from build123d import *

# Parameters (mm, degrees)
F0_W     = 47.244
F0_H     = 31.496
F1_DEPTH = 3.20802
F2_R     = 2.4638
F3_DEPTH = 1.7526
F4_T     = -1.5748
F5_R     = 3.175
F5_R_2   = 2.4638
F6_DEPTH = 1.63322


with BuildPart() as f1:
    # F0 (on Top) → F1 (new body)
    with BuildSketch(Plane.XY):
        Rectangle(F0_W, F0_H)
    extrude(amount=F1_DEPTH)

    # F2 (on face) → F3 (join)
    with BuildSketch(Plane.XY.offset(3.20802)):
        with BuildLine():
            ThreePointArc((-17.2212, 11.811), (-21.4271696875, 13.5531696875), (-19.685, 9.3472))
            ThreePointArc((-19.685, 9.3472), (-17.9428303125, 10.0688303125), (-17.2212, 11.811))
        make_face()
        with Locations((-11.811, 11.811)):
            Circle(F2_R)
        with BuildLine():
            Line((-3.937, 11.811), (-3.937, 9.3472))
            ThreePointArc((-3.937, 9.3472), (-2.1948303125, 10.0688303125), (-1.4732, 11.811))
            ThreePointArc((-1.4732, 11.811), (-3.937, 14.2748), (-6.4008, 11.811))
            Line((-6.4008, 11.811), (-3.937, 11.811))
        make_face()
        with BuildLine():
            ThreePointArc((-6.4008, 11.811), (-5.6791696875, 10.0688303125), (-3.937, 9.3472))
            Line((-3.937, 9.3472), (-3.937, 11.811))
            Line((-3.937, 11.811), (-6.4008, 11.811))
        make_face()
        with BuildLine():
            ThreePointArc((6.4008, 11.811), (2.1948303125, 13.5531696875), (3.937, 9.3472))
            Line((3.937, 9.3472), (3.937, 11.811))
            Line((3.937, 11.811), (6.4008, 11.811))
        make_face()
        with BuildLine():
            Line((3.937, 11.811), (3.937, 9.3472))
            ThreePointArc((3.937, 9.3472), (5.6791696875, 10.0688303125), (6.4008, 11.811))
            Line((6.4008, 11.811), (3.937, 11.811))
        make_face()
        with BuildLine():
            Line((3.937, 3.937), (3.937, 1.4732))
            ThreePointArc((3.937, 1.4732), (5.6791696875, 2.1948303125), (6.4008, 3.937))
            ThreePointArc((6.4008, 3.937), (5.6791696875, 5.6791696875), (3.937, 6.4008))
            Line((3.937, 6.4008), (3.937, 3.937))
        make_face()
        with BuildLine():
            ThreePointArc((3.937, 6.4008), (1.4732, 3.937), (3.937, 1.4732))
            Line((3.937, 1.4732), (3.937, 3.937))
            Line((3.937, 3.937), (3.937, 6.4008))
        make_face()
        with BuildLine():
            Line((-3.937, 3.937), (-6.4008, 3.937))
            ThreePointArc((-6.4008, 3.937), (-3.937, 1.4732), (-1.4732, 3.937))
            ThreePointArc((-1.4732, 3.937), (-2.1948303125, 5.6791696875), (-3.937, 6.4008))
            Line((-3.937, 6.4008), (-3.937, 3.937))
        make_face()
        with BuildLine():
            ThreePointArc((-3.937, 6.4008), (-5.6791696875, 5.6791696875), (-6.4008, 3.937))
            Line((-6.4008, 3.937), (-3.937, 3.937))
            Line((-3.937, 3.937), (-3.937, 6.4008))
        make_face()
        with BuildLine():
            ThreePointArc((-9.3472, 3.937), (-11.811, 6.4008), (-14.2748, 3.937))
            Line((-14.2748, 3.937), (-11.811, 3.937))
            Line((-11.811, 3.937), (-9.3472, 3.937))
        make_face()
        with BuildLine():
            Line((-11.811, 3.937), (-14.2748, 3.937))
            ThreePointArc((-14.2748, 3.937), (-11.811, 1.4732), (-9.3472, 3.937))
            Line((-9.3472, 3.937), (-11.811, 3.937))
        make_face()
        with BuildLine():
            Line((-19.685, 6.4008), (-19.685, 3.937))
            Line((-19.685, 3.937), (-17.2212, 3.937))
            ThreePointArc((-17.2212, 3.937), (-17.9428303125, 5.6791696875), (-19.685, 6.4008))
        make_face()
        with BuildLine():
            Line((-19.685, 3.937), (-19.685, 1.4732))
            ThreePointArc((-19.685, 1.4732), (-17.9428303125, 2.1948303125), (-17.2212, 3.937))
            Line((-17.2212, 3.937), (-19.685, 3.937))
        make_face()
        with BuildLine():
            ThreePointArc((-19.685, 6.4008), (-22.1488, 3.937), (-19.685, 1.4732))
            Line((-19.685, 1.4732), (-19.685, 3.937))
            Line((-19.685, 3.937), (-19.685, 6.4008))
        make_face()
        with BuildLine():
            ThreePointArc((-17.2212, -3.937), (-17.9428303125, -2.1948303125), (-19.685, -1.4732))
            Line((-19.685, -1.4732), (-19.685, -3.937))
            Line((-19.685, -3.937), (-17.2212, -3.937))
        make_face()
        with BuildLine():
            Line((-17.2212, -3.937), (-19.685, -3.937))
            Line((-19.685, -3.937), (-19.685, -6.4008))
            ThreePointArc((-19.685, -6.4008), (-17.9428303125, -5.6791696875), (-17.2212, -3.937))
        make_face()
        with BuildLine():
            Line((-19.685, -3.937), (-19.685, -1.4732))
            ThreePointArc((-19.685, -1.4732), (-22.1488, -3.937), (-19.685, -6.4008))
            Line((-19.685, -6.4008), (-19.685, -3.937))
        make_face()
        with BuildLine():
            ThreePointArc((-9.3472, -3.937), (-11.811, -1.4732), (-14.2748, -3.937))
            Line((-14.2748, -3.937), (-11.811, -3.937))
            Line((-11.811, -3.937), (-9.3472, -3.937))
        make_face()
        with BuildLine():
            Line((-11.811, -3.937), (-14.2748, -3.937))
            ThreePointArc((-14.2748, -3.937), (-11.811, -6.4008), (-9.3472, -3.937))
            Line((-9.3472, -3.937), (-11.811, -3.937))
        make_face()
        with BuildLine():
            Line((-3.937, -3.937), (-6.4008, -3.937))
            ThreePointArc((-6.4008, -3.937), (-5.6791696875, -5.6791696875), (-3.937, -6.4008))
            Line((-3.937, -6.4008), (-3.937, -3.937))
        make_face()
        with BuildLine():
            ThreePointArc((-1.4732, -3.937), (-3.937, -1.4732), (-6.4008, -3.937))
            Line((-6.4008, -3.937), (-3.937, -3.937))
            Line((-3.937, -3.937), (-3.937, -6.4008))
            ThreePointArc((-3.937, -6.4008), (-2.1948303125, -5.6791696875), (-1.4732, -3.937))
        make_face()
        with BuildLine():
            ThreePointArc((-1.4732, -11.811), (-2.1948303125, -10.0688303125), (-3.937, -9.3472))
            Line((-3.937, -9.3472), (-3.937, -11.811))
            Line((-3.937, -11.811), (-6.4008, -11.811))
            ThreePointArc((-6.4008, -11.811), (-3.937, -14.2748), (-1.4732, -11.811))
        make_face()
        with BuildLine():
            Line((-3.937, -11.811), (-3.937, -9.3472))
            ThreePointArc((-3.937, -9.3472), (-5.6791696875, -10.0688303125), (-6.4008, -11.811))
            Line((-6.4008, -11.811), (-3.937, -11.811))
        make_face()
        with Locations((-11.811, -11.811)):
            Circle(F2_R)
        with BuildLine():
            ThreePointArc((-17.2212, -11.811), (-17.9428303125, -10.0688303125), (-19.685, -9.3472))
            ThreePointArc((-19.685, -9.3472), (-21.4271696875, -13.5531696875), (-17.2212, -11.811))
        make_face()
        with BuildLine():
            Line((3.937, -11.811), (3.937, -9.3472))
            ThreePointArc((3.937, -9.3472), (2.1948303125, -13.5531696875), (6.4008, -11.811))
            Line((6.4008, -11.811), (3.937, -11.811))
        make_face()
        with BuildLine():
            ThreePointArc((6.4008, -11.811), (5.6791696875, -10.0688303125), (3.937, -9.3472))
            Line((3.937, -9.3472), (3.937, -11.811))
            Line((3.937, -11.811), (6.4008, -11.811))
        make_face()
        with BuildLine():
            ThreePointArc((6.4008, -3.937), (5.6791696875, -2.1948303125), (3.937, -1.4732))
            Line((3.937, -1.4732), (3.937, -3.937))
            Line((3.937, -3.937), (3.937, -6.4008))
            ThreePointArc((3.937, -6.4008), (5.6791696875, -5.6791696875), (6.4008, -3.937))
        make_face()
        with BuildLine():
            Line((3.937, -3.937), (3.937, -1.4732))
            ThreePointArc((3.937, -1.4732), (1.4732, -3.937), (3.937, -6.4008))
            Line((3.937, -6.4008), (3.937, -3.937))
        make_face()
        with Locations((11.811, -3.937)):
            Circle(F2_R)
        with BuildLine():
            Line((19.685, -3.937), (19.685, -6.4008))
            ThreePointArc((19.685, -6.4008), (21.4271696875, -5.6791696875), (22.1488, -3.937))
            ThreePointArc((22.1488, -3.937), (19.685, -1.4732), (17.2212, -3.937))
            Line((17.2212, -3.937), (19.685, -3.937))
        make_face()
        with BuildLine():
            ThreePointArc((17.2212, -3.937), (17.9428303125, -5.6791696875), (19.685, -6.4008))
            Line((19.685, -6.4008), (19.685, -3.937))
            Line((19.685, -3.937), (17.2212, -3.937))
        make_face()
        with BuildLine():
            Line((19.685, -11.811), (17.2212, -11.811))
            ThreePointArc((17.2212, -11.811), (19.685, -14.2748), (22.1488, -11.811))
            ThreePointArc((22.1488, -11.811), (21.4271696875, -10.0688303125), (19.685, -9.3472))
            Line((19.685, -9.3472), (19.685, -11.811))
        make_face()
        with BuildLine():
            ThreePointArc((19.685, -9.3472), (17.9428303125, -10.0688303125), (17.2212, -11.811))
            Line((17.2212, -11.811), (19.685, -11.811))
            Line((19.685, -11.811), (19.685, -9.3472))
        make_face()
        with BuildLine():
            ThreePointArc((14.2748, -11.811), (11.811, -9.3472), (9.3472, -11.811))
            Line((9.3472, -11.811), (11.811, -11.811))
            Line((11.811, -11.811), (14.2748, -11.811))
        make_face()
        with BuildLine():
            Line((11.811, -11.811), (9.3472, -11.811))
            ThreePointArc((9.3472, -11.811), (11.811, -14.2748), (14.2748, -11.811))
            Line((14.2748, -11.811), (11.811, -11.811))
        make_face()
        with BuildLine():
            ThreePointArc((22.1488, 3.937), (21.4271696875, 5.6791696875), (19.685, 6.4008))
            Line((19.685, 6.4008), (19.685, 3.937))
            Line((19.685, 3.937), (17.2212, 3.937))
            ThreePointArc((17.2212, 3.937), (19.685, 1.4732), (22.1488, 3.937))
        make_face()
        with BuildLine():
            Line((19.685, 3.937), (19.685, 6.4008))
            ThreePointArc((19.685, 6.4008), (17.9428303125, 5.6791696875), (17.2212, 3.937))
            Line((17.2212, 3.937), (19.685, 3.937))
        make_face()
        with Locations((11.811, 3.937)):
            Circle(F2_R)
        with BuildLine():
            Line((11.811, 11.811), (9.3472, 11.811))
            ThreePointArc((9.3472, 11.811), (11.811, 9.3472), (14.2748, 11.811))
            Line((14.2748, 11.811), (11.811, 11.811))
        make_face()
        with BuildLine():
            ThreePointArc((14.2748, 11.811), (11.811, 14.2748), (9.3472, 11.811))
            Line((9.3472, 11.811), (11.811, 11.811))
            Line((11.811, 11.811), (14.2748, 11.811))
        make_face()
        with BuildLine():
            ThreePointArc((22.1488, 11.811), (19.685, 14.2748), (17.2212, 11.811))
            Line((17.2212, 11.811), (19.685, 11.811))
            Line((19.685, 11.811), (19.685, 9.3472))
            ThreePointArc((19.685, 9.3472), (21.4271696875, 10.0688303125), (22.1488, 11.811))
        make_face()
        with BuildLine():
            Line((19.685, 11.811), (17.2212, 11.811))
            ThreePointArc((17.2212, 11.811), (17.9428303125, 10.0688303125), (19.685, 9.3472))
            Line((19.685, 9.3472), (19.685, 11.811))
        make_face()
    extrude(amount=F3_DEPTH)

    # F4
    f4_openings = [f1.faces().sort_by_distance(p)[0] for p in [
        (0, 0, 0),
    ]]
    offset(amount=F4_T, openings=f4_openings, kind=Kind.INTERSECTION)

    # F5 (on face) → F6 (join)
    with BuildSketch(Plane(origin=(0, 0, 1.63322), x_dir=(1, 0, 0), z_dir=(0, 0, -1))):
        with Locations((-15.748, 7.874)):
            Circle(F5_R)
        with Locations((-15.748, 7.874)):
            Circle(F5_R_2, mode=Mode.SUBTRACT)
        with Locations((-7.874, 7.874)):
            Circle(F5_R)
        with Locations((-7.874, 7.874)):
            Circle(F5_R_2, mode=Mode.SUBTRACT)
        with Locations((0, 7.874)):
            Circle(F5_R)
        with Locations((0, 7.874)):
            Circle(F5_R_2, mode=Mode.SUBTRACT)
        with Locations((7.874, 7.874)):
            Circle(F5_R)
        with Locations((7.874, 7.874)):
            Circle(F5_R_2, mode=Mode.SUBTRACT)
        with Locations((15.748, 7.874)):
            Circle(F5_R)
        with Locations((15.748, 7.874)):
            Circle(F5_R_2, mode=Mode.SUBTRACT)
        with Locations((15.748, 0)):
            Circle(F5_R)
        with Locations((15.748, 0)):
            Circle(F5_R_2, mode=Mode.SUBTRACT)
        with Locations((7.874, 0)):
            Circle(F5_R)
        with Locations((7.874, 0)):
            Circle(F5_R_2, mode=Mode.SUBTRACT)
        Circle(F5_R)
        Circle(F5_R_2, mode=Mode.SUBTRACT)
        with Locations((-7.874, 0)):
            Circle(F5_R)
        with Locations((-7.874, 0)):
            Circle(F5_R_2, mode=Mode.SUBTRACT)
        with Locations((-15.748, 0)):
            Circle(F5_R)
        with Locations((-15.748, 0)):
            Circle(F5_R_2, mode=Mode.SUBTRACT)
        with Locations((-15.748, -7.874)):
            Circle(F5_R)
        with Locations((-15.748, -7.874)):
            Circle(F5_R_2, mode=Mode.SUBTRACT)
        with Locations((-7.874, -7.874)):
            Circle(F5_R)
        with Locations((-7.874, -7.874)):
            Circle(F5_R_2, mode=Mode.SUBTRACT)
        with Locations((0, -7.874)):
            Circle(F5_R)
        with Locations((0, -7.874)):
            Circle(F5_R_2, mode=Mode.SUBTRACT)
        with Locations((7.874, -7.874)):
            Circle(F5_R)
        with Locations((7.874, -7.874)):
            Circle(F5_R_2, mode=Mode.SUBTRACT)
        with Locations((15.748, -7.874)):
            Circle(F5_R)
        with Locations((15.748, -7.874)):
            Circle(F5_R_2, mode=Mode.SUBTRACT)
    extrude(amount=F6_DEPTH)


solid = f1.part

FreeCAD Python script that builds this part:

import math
import FreeCAD as App
import Part
import Sketcher
from FreeCAD import Vector
Q = App.Units.Quantity


def faces_at(feature, points):
    """Names of the faces that lie closest to the given points."""
    faces = feature.Shape.Faces
    near = lambda p: min(range(len(faces)), key=lambda i: faces[i].distToShape(Part.Vertex(*p))[0])
    return sorted({f"Face{near(p) + 1}" for p in points})


def add_polygon(sketch, points):
    """Adds a closed chain of lines whose ends are joined by coincident constraints."""
    first, n = sketch.GeometryCount, len(points)
    for a, b in zip(points, points[1:] + points[:1]):
        sketch.addGeometry(Part.LineSegment(App.Vector(*a, 0), App.Vector(*b, 0)), False)
    for i in range(n):
        sketch.addConstraint(Sketcher.Constraint("Coincident", first + i, 2, first + (i + 1) % n, 1))

doc = App.newDocument("Part")
body = doc.addObject("PartDesign::Body", "Body")

# Sketch on XY plane
sketch1 = body.newObject("Sketcher::SketchObject", "Sketch")
sketch1.AttachmentSupport = (doc.getObject("XY_Plane"), [""])
sketch1.MapMode = "FlatFace"
add_polygon(sketch1, [(-24, 16), (-24, -16), (24, -16), (24, 16)])  # lines 0-3
sketch1.addConstraint(Sketcher.Constraint("Vertical", 0))
sketch1.addConstraint(Sketcher.Constraint("Horizontal", 1))
sketch1.addConstraint(Sketcher.Constraint("Vertical", 2))
sketch1.addConstraint(Sketcher.Constraint("Horizontal", 3))
sketch1.addConstraint(Sketcher.Constraint("Symmetric", 0, 2, 2, 2, -1, 1))
sketch1.addConstraint(Sketcher.Constraint("DistanceX", 1, 1, 1, 2, Q("1.86 in")))
sketch1.addConstraint(Sketcher.Constraint("DistanceY", 0, 2, 0, 1, Q("1.24 in")))
pad1 = body.newObject("PartDesign::Pad", "Pad")
pad1.Profile = sketch1
pad1.Length = Q("0.1263 in")

# Sketch on XY plane
sketch2 = body.newObject("Sketcher::SketchObject", "Sketch001")
sketch2.AttachmentSupport = (doc.getObject("XY_Plane"), [""])
sketch2.MapMode = "FlatFace"
sketch2.AttachmentOffset = App.Placement(Vector(0, 0, 0.1263 * 25.4), App.Rotation())
sketch2.addGeometry(Part.ArcOfCircle(Part.Circle(Vector(-19.7, 11.8, 0), Vector(0, 0, 1), 2.5), math.radians(0), math.radians(270)), False)
sketch2.addGeometry(Part.ArcOfCircle(Part.Circle(Vector(-19.7, 11.8, 0), Vector(0, 0, 1), 2.5), math.radians(-90), math.radians(0)), False)
sketch2.addGeometry(Part.Circle(Vector(-11.8, 11.8, 0), Vector(0, 0, 1), 2.5), False)
sketch2.addGeometry(Part.ArcOfCircle(Part.Circle(Vector(-3.9, 11.8, 0), Vector(0, 0, 1), 2.5), math.radians(-90), math.radians(0)), False)
sketch2.addGeometry(Part.ArcOfCircle(Part.Circle(Vector(-3.9, 11.8, 0), Vector(0, 0, 1), 2.5), math.radians(0), math.radians(180)), False)
sketch2.addGeometry(Part.ArcOfCircle(Part.Circle(Vector(-3.9, 11.8, 0), Vector(0, 0, 1), 2.5), math.radians(180), math.radians(270)), False)
sketch2.addGeometry(Part.ArcOfCircle(Part.Circle(Vector(3.9, 11.8, 0), Vector(0, 0, 1), 2.5), math.radians(0), math.radians(270)), False)
sketch2.addGeometry(Part.ArcOfCircle(Part.Circle(Vector(3.9, 11.8, 0), Vector(0, 0, 1), 2.5), math.radians(-90), math.radians(0)), False)
sketch2.addGeometry(Part.ArcOfCircle(Part.Circle(Vector(3.9, 3.9, 0), Vector(0, 0, 1), 2.5), math.radians(-90), math.radians(0)), False)
sketch2.addGeometry(Part.ArcOfCircle(Part.Circle(Vector(3.9, 3.9, 0), Vector(0, 0, 1), 2.5), math.radians(0), math.radians(90)), False)
sketch2.addGeometry(Part.ArcOfCircle(Part.Circle(Vector(3.9, 3.9, 0), Vector(0, 0, 1), 2.5), math.radians(90), math.radians(270)), False)
sketch2.addGeometry(Part.ArcOfCircle(Part.Circle(Vector(-3.9, 3.9, 0), Vector(0, 0, 1), 2.5), math.radians(180), math.radians(360)), False)
sketch2.addGeometry(Part.ArcOfCircle(Part.Circle(Vector(-3.9, 3.9, 0), Vector(0, 0, 1), 2.5), math.radians(0), math.radians(90)), False)
sketch2.addGeometry(Part.ArcOfCircle(Part.Circle(Vector(-3.9, 3.9, 0), Vector(0, 0, 1), 2.5), math.radians(90), math.radians(180)), False)
sketch2.addGeometry(Part.Circle(Vector(-11.8, 3.9, 0), Vector(0, 0, 1), 2.5), False)
sketch2.addGeometry(Part.ArcOfCircle(Part.Circle(Vector(-19.7, 3.9, 0), Vector(0, 0, 1), 2.5), math.radians(-90), math.radians(0)), False)
sketch2.addGeometry(Part.ArcOfCircle(Part.Circle(Vector(-19.7, 3.9, 0), Vector(0, 0, 1), 2.5), math.radians(0), math.radians(90)), False)
sketch2.addGeometry(Part.ArcOfCircle(Part.Circle(Vector(-19.7, 3.9, 0), Vector(0, 0, 1), 2.5), math.radians(90), math.radians(270)), False)
sketch2.addGeometry(Part.ArcOfCircle(Part.Circle(Vector(-19.7, -3.9, 0), Vector(0, 0, 1), 2.5), math.radians(0), math.radians(90)), False)
sketch2.addGeometry(Part.ArcOfCircle(Part.Circle(Vector(-19.7, -3.9, 0), Vector(0, 0, 1), 2.5), math.radians(90), math.radians(270)), False)
sketch2.addGeometry(Part.ArcOfCircle(Part.Circle(Vector(-19.7, -3.9, 0), Vector(0, 0, 1), 2.5), math.radians(-90), math.radians(0)), False)
sketch2.addGeometry(Part.Circle(Vector(-11.8, -3.9, 0), Vector(0, 0, 1), 2.5), False)
sketch2.addGeometry(Part.ArcOfCircle(Part.Circle(Vector(-3.9, -3.9, 0), Vector(0, 0, 1), 2.5), math.radians(180), math.radians(270)), False)
sketch2.addGeometry(Part.ArcOfCircle(Part.Circle(Vector(-3.9, -3.9, 0), Vector(0, 0, 1), 2.5), math.radians(-90), math.radians(0)), False)
sketch2.addGeometry(Part.ArcOfCircle(Part.Circle(Vector(-3.9, -3.9, 0), Vector(0, 0, 1), 2.5), math.radians(0), math.radians(180)), False)
sketch2.addGeometry(Part.ArcOfCircle(Part.Circle(Vector(-3.9, -11.8, 0), Vector(0, 0, 1), 2.5), math.radians(0), math.radians(90)), False)
sketch2.addGeometry(Part.ArcOfCircle(Part.Circle(Vector(-3.9, -11.8, 0), Vector(0, 0, 1), 2.5), math.radians(90), math.radians(180)), False)
sketch2.addGeometry(Part.ArcOfCircle(Part.Circle(Vector(-3.9, -11.8, 0), Vector(0, 0, 1), 2.5), math.radians(180), math.radians(360)), False)
sketch2.addGeometry(Part.Circle(Vector(-11.8, -11.8, 0), Vector(0, 0, 1), 2.5), False)
sketch2.addGeometry(Part.ArcOfCircle(Part.Circle(Vector(-19.7, -11.8, 0), Vector(0, 0, 1), 2.5), math.radians(0), math.radians(90)), False)
sketch2.addGeometry(Part.ArcOfCircle(Part.Circle(Vector(-19.7, -11.8, 0), Vector(0, 0, 1), 2.5), math.radians(90), math.radians(360)), False)
sketch2.addGeometry(Part.ArcOfCircle(Part.Circle(Vector(3.9, -11.8, 0), Vector(0, 0, 1), 2.5), math.radians(90), math.radians(360)), False)
sketch2.addGeometry(Part.ArcOfCircle(Part.Circle(Vector(3.9, -11.8, 0), Vector(0, 0, 1), 2.5), math.radians(0), math.radians(90)), False)
sketch2.addGeometry(Part.ArcOfCircle(Part.Circle(Vector(3.9, -3.9, 0), Vector(0, 0, 1), 2.5), math.radians(0), math.radians(90)), False)
sketch2.addGeometry(Part.ArcOfCircle(Part.Circle(Vector(3.9, -3.9, 0), Vector(0, 0, 1), 2.5), math.radians(90), math.radians(270)), False)
sketch2.addGeometry(Part.ArcOfCircle(Part.Circle(Vector(3.9, -3.9, 0), Vector(0, 0, 1), 2.5), math.radians(-90), math.radians(0)), False)
sketch2.addGeometry(Part.Circle(Vector(11.8, -3.9, 0), Vector(0, 0, 1), 2.5), False)
sketch2.addGeometry(Part.ArcOfCircle(Part.Circle(Vector(19.7, -3.9, 0), Vector(0, 0, 1), 2.5), math.radians(-90), math.radians(0)), False)
sketch2.addGeometry(Part.ArcOfCircle(Part.Circle(Vector(19.7, -3.9, 0), Vector(0, 0, 1), 2.5), math.radians(0), math.radians(180)), False)
sketch2.addGeometry(Part.ArcOfCircle(Part.Circle(Vector(19.7, -3.9, 0), Vector(0, 0, 1), 2.5), math.radians(180), math.radians(270)), False)
sketch2.addGeometry(Part.ArcOfCircle(Part.Circle(Vector(19.7, -11.8, 0), Vector(0, 0, 1), 2.5), math.radians(180), math.radians(360)), False)
sketch2.addGeometry(Part.ArcOfCircle(Part.Circle(Vector(19.7, -11.8, 0), Vector(0, 0, 1), 2.5), math.radians(0), math.radians(90)), False)
sketch2.addGeometry(Part.ArcOfCircle(Part.Circle(Vector(19.7, -11.8, 0), Vector(0, 0, 1), 2.5), math.radians(90), math.radians(180)), False)
sketch2.addGeometry(Part.Circle(Vector(11.8, -11.8, 0), Vector(0, 0, 1), 2.5), False)
sketch2.addGeometry(Part.ArcOfCircle(Part.Circle(Vector(19.7, 3.9, 0), Vector(0, 0, 1), 2.5), math.radians(0), math.radians(90)), False)
sketch2.addGeometry(Part.ArcOfCircle(Part.Circle(Vector(19.7, 3.9, 0), Vector(0, 0, 1), 2.5), math.radians(90), math.radians(180)), False)
sketch2.addGeometry(Part.ArcOfCircle(Part.Circle(Vector(19.7, 3.9, 0), Vector(0, 0, 1), 2.5), math.radians(180), math.radians(360)), False)
sketch2.addGeometry(Part.Circle(Vector(11.8, 3.9, 0), Vector(0, 0, 1), 2.5), False)
sketch2.addGeometry(Part.Circle(Vector(11.8, 11.8, 0), Vector(0, 0, 1), 2.5), False)
sketch2.addGeometry(Part.ArcOfCircle(Part.Circle(Vector(19.7, 11.8, 0), Vector(0, 0, 1), 2.5), math.radians(0), math.radians(180)), False)
sketch2.addGeometry(Part.ArcOfCircle(Part.Circle(Vector(19.7, 11.8, 0), Vector(0, 0, 1), 2.5), math.radians(180), math.radians(270)), False)
sketch2.addGeometry(Part.ArcOfCircle(Part.Circle(Vector(19.7, 11.8, 0), Vector(0, 0, 1), 2.5), math.radians(-90), math.radians(0)), False)
sketch2.addConstraint(Sketcher.Constraint("Tangent", 0, 1, 1, 2))
sketch2.addConstraint(Sketcher.Constraint("Coincident", 1, 1, 0, 2))
sketch2.addConstraint(Sketcher.Constraint("Tangent", 3, 2, 4, 1))
sketch2.addConstraint(Sketcher.Constraint("Tangent", 4, 2, 5, 1))
sketch2.addConstraint(Sketcher.Constraint("Tangent", 5, 2, 3, 1))
sketch2.addConstraint(Sketcher.Constraint("Tangent", 6, 1, 7, 2))
sketch2.addConstraint(Sketcher.Constraint("Coincident", 7, 1, 6, 2))
sketch2.addConstraint(Sketcher.Constraint("Tangent", 8, 2, 9, 1))
sketch2.addConstraint(Sketcher.Constraint("Tangent", 9, 2, 10, 1))
sketch2.addConstraint(Sketcher.Constraint("Tangent", 10, 2, 8, 1))
sketch2.addConstraint(Sketcher.Constraint("Tangent", 11, 2, 12, 1))
sketch2.addConstraint(Sketcher.Constraint("Tangent", 12, 2, 13, 1))
sketch2.addConstraint(Sketcher.Constraint("Tangent", 13, 2, 11, 1))
sketch2.addConstraint(Sketcher.Constraint("Tangent", 15, 2, 16, 1))
sketch2.addConstraint(Sketcher.Constraint("Tangent", 16, 2, 17, 1))
sketch2.addConstraint(Sketcher.Constraint("Tangent", 17, 2, 15, 1))
sketch2.addConstraint(Sketcher.Constraint("Tangent", 18, 2, 19, 1))
sketch2.addConstraint(Sketcher.Constraint("Tangent", 19, 2, 20, 1))
sketch2.addConstraint(Sketcher.Constraint("Tangent", 20, 2, 18, 1))
sketch2.addConstraint(Sketcher.Constraint("Tangent", 22, 2, 23, 1))
sketch2.addConstraint(Sketcher.Constraint("Tangent", 23, 2, 24, 1))
sketch2.addConstraint(Sketcher.Constraint("Tangent", 24, 2, 22, 1))
sketch2.addConstraint(Sketcher.Constraint("Tangent", 25, 2, 26, 1))
sketch2.addConstraint(Sketcher.Constraint("Tangent", 26, 2, 27, 1))
sketch2.addConstraint(Sketcher.Constraint("Tangent", 27, 2, 25, 1))
sketch2.addConstraint(Sketcher.Constraint("Tangent", 29, 1, 30, 2))
sketch2.addConstraint(Sketcher.Constraint("Coincident", 30, 1, 29, 2))
sketch2.addConstraint(Sketcher.Constraint("Tangent", 31, 1, 32, 2))
sketch2.addConstraint(Sketcher.Constraint("Coincident", 32, 1, 31, 2))
sketch2.addConstraint(Sketcher.Constraint("Tangent", 33, 2, 34, 1))
sketch2.addConstraint(Sketcher.Constraint("Tangent", 34, 2, 35, 1))
sketch2.addConstraint(Sketcher.Constraint("Tangent", 35, 2, 33, 1))
sketch2.addConstraint(Sketcher.Constraint("Tangent", 37, 2, 38, 1))
sketch2.addConstraint(Sketcher.Constraint("Tangent", 38, 2, 39, 1))
sketch2.addConstraint(Sketcher.Constraint("Tangent", 39, 2, 37, 1))
sketch2.addConstraint(Sketcher.Constraint("Tangent", 40, 2, 41, 1))
sketch2.addConstraint(Sketcher.Constraint("Tangent", 41, 2, 42, 1))
sketch2.addConstraint(Sketcher.Constraint("Tangent", 42, 2, 40, 1))
sketch2.addConstraint(Sketcher.Constraint("Tangent", 44, 2, 45, 1))
sketch2.addConstraint(Sketcher.Constraint("Tangent", 45, 2, 46, 1))
sketch2.addConstraint(Sketcher.Constraint("Tangent", 46, 2, 44, 1))
sketch2.addConstraint(Sketcher.Constraint("Tangent", 49, 2, 50, 1))
sketch2.addConstraint(Sketcher.Constraint("Tangent", 50, 2, 51, 1))
sketch2.addConstraint(Sketcher.Constraint("Tangent", 51, 2, 49, 1))
sketch2.addConstraint(Sketcher.Constraint("Equal", 1, 2))
sketch2.addConstraint(Sketcher.Constraint("Equal", 2, 3))
sketch2.addConstraint(Sketcher.Constraint("Equal", 5, 6))
sketch2.addConstraint(Sketcher.Constraint("Equal", 7, 8))
sketch2.addConstraint(Sketcher.Constraint("Equal", 10, 11))
sketch2.addConstraint(Sketcher.Constraint("Equal", 13, 14))
sketch2.addConstraint(Sketcher.Constraint("Equal", 14, 15))
sketch2.addConstraint(Sketcher.Constraint("Equal", 17, 18))
sketch2.addConstraint(Sketcher.Constraint("Equal", 20, 21))
sketch2.addConstraint(Sketcher.Constraint("Equal", 21, 22))
sketch2.addConstraint(Sketcher.Constraint("Equal", 24, 25))
sketch2.addConstraint(Sketcher.Constraint("Equal", 27, 28))
sketch2.addConstraint(Sketcher.Constraint("Equal", 28, 29))
sketch2.addConstraint(Sketcher.Constraint("Equal", 30, 31))
sketch2.addConstraint(Sketcher.Constraint("Equal", 32, 33))
sketch2.addConstraint(Sketcher.Constraint("Equal", 35, 36))
sketch2.addConstraint(Sketcher.Constraint("Equal", 36, 37))
sketch2.addConstraint(Sketcher.Constraint("Equal", 39, 40))
sketch2.addConstraint(Sketcher.Constraint("Equal", 42, 43))
sketch2.addConstraint(Sketcher.Constraint("Equal", 43, 44))
sketch2.addConstraint(Sketcher.Constraint("Equal", 46, 47))
sketch2.addConstraint(Sketcher.Constraint("Equal", 47, 48))
sketch2.addConstraint(Sketcher.Constraint("Equal", 48, 49))
sketch2.addConstraint(Sketcher.Constraint("Symmetric", 8, 3, 22, 3, -1, 1))
sketch2.addConstraint(Sketcher.Constraint("Symmetric", 6, 3, 25, 3, -1, 1))
sketch2.addConstraint(Sketcher.Constraint("Symmetric", 3, 3, 31, 3, -1, 1))
sketch2.addConstraint(Sketcher.Constraint("Symmetric", 11, 3, 33, 3, -1, 1))
sketch2.addConstraint(Sketcher.Constraint("Symmetric", 14, 3, 36, 3, -1, 1))
sketch2.addConstraint(Sketcher.Constraint("Symmetric", 15, 3, 37, 3, -1, 1))
sketch2.addConstraint(Sketcher.Constraint("Symmetric", 0, 3, 40, 3, -1, 1))
sketch2.addConstraint(Sketcher.Constraint("Symmetric", 2, 3, 43, 3, -1, 1))
sketch2.addConstraint(Sketcher.Constraint("Symmetric", 18, 3, 44, 3, -1, 1))
sketch2.addConstraint(Sketcher.Constraint("Symmetric", 21, 3, 47, 3, -1, 1))
sketch2.addConstraint(Sketcher.Constraint("Symmetric", 28, 3, 48, 3, -1, 1))
sketch2.addConstraint(Sketcher.Constraint("Symmetric", 29, 3, 49, 3, -1, 1))
sketch2.addConstraint(Sketcher.Constraint("Symmetric", 3, 3, 6, 3, -2))
sketch2.addConstraint(Sketcher.Constraint("Symmetric", 8, 3, 11, 3, -2))
sketch2.addConstraint(Sketcher.Constraint("Symmetric", 21, 3, 36, 3, -2))
sketch2.addConstraint(Sketcher.Constraint("Symmetric", 18, 3, 37, 3, -2))
sketch2.addConstraint(Sketcher.Constraint("Symmetric", 29, 3, 40, 3, -2))
sketch2.addConstraint(Sketcher.Constraint("Symmetric", 28, 3, 43, 3, -2))
sketch2.addConstraint(Sketcher.Constraint("Horizontal", 1, 3, 2, 3))
sketch2.addConstraint(Sketcher.Constraint("Horizontal", 2, 3, 3, 3))
sketch2.addConstraint(Sketcher.Constraint("Horizontal", 13, 3, 14, 3))
sketch2.addConstraint(Sketcher.Constraint("Horizontal", 14, 3, 15, 3))
sketch2.addConstraint(Sketcher.Constraint("Horizontal", 51, 3, 0, 1))
sketch2.addConstraint(Sketcher.Constraint("Horizontal", 0, 1, 3, 2))
sketch2.addConstraint(Sketcher.Constraint("Horizontal", 3, 2, 4, 2))
sketch2.addConstraint(Sketcher.Constraint("Horizontal", 4, 2, 6, 1))
sketch2.addConstraint(Sketcher.Constraint("Horizontal", 47, 3, 8, 2))
sketch2.addConstraint(Sketcher.Constraint("Horizontal", 8, 2, 11, 2))
sketch2.addConstraint(Sketcher.Constraint("Horizontal", 11, 2, 13, 2))
sketch2.addConstraint(Sketcher.Constraint("Horizontal", 13, 2, 15, 2))
sketch2.addConstraint(Sketcher.Constraint("Horizontal", 39, 3, 20, 2))
sketch2.addConstraint(Sketcher.Constraint("Horizontal", 20, 2, 23, 2))
sketch2.addConstraint(Sketcher.Constraint("Horizontal", 23, 2, 24, 2))
sketch2.addConstraint(Sketcher.Constraint("Horizontal", 43, 3, 26, 2))
sketch2.addConstraint(Sketcher.Constraint("Horizontal", 26, 2, 27, 2))
sketch2.addConstraint(Sketcher.Constraint("Horizontal", 27, 2, 29, 1))
sketch2.addConstraint(Sketcher.Constraint("Horizontal", 29, 1, 32, 1))
sketch2.addConstraint(Sketcher.Constraint("Horizontal", 24, 2, 35, 2))
sketch2.addConstraint(Sketcher.Constraint("Horizontal", 35, 2, 37, 2))
sketch2.addConstraint(Sketcher.Constraint("Horizontal", 37, 2, 38, 2))
sketch2.addConstraint(Sketcher.Constraint("Horizontal", 32, 1, 40, 2))
sketch2.addConstraint(Sketcher.Constraint("Horizontal", 40, 2, 42, 2))
sketch2.addConstraint(Sketcher.Constraint("Horizontal", 15, 2, 45, 2))
sketch2.addConstraint(Sketcher.Constraint("Horizontal", 45, 2, 46, 2))
sketch2.addConstraint(Sketcher.Constraint("Horizontal", 6, 1, 49, 2))
sketch2.addConstraint(Sketcher.Constraint("Horizontal", 49, 2, 51, 2))
sketch2.addConstraint(Sketcher.Constraint("Vertical", 7, 3, 8, 3))
sketch2.addConstraint(Sketcher.Constraint("Vertical", 2, 3, 14, 3))
sketch2.addConstraint(Sketcher.Constraint("Vertical", 1, 3, 15, 3))
sketch2.addConstraint(Sketcher.Constraint("Vertical", 30, 3, 1, 1))
sketch2.addConstraint(Sketcher.Constraint("Vertical", 27, 3, 5, 2))
sketch2.addConstraint(Sketcher.Constraint("Vertical", 35, 3, 7, 1))
sketch2.addConstraint(Sketcher.Constraint("Vertical", 7, 1, 9, 2))
sketch2.addConstraint(Sketcher.Constraint("Vertical", 9, 2, 10, 2))
sketch2.addConstraint(Sketcher.Constraint("Vertical", 5, 2, 12, 2))
sketch2.addConstraint(Sketcher.Constraint("Vertical", 1, 1, 16, 2))
sketch2.addConstraint(Sketcher.Constraint("Vertical", 16, 2, 17, 2))
sketch2.addConstraint(Sketcher.Constraint("Vertical", 17, 2, 18, 2))
sketch2.addConstraint(Sketcher.Constraint("Vertical", 18, 2, 19, 2))
sketch2.addConstraint(Sketcher.Constraint("Vertical", 12, 2, 22, 2))
sketch2.addConstraint(Sketcher.Constraint("Vertical", 22, 2, 25, 2))
sketch2.addConstraint(Sketcher.Constraint("Vertical", 19, 2, 30, 1))
sketch2.addConstraint(Sketcher.Constraint("Vertical", 10, 2, 31, 1))
sketch2.addConstraint(Sketcher.Constraint("Vertical", 31, 1, 33, 2))
sketch2.addConstraint(Sketcher.Constraint("Vertical", 33, 2, 34, 2))
sketch2.addConstraint(Sketcher.Constraint("Vertical", 51, 3, 39, 2))
sketch2.addConstraint(Sketcher.Constraint("Vertical", 39, 2, 41, 2))
sketch2.addConstraint(Sketcher.Constraint("Vertical", 41, 2, 44, 2))
sketch2.addConstraint(Sketcher.Constraint("Vertical", 44, 2, 50, 2))
sketch2.addConstraint(Sketcher.Constraint("Diameter", 2, Q("0.194 in")))
sketch2.addConstraint(Sketcher.Constraint("DistanceX", 0, 3, -1, 1, Q("0.775 in")))
sketch2.addConstraint(Sketcher.Constraint("DistanceY", -1, 1, 0, 3, Q("0.465 in")))
sketch2.addConstraint(Sketcher.Constraint("DistanceX", 2, 3, -1, 1, Q("0.465 in")))
sketch2.addConstraint(Sketcher.Constraint("DistanceX", 3, 3, -1, 1, Q("0.155 in")))
sketch2.addConstraint(Sketcher.Constraint("DistanceY", -1, 1, 8, 3, Q("0.155 in")))
pad2 = body.newObject("PartDesign::Pad", "Pad001")
pad2.Profile = sketch2
pad2.Length = Q("0.069 in")
doc.recompute()

thickness = body.newObject("PartDesign::Thickness", "Thickness")
thickness.Base = (pad2, faces_at(pad2, [(0, 0, 0)]))
thickness.Value = Q("0.062 in")
thickness.Reversed = True
thickness.Join = "Intersection"

# Sketch on XY plane
sketch3 = body.newObject("Sketcher::SketchObject", "Sketch002")
sketch3.AttachmentSupport = (doc.getObject("XY_Plane"), [""])
sketch3.MapMode = "FlatFace"
sketch3.AttachmentOffset = App.Placement(Vector(0, 0, 0.0643 * 25.4), App.Rotation())
sketch3.addGeometry(Part.Circle(Vector(-15.7, -7.9, 0), Vector(0, 0, 1), 3.2), False)
sketch3.addGeometry(Part.Circle(Vector(-15.7, -7.9, 0), Vector(0, 0, 1), 2.5), False)
sketch3.addGeometry(Part.Circle(Vector(-7.9, -7.9, 0), Vector(0, 0, 1), 3.2), False)
sketch3.addGeometry(Part.Circle(Vector(-7.9, -7.9, 0), Vector(0, 0, 1), 2.5), False)
sketch3.addGeometry(Part.Circle(Vector(0, -7.9, 0), Vector(0, 0, 1), 3.2), False)
sketch3.addGeometry(Part.Circle(Vector(0, -7.9, 0), Vector(0, 0, 1), 2.5), False)
sketch3.addGeometry(Part.Circle(Vector(7.9, -7.9, 0), Vector(0, 0, 1), 3.2), False)
sketch3.addGeometry(Part.Circle(Vector(7.9, -7.9, 0), Vector(0, 0, 1), 2.5), False)
sketch3.addGeometry(Part.Circle(Vector(15.7, -7.9, 0), Vector(0, 0, 1), 3.2), False)
sketch3.addGeometry(Part.Circle(Vector(15.7, -7.9, 0), Vector(0, 0, 1), 2.5), False)
sketch3.addGeometry(Part.Circle(Vector(15.7, 0, 0), Vector(0, 0, 1), 3.2), False)
sketch3.addGeometry(Part.Circle(Vector(15.7, 0, 0), Vector(0, 0, 1), 2.5), False)
sketch3.addGeometry(Part.Circle(Vector(7.9, 0, 0), Vector(0, 0, 1), 3.2), False)
sketch3.addGeometry(Part.Circle(Vector(7.9, 0, 0), Vector(0, 0, 1), 2.5), False)
sketch3.addGeometry(Part.Circle(Vector(0, 0, 0), Vector(0, 0, 1), 3.2), False)
sketch3.addGeometry(Part.Circle(Vector(0, 0, 0), Vector(0, 0, 1), 2.5), False)
sketch3.addGeometry(Part.Circle(Vector(-7.9, 0, 0), Vector(0, 0, 1), 3.2), False)
sketch3.addGeometry(Part.Circle(Vector(-7.9, 0, 0), Vector(0, 0, 1), 2.5), False)
sketch3.addGeometry(Part.Circle(Vector(-15.7, 0, 0), Vector(0, 0, 1), 3.2), False)
sketch3.addGeometry(Part.Circle(Vector(-15.7, 0, 0), Vector(0, 0, 1), 2.5), False)
sketch3.addGeometry(Part.Circle(Vector(-15.7, 7.9, 0), Vector(0, 0, 1), 3.2), False)
sketch3.addGeometry(Part.Circle(Vector(-15.7, 7.9, 0), Vector(0, 0, 1), 2.5), False)
sketch3.addGeometry(Part.Circle(Vector(-7.9, 7.9, 0), Vector(0, 0, 1), 3.2), False)
sketch3.addGeometry(Part.Circle(Vector(-7.9, 7.9, 0), Vector(0, 0, 1), 2.5), False)
sketch3.addGeometry(Part.Circle(Vector(0, 7.9, 0), Vector(0, 0, 1), 3.2), False)
sketch3.addGeometry(Part.Circle(Vector(0, 7.9, 0), Vector(0, 0, 1), 2.5), False)
sketch3.addGeometry(Part.Circle(Vector(7.9, 7.9, 0), Vector(0, 0, 1), 3.2), False)
sketch3.addGeometry(Part.Circle(Vector(7.9, 7.9, 0), Vector(0, 0, 1), 2.5), False)
sketch3.addGeometry(Part.Circle(Vector(15.7, 7.9, 0), Vector(0, 0, 1), 3.2), False)
sketch3.addGeometry(Part.Circle(Vector(15.7, 7.9, 0), Vector(0, 0, 1), 2.5), False)
sketch3.addConstraint(Sketcher.Constraint("Coincident", 14, 3, -1, 1))
sketch3.addConstraint(Sketcher.Constraint("Coincident", 15, 3, -1, 1))
sketch3.addConstraint(Sketcher.Constraint("Coincident", 1, 3, 0, 3))
sketch3.addConstraint(Sketcher.Constraint("Coincident", 3, 3, 2, 3))
sketch3.addConstraint(Sketcher.Constraint("Coincident", 5, 3, 4, 3))
sketch3.addConstraint(Sketcher.Constraint("Coincident", 7, 3, 6, 3))
sketch3.addConstraint(Sketcher.Constraint("Coincident", 9, 3, 8, 3))
sketch3.addConstraint(Sketcher.Constraint("Coincident", 11, 3, 10, 3))
sketch3.addConstraint(Sketcher.Constraint("Coincident", 13, 3, 12, 3))
sketch3.addConstraint(Sketcher.Constraint("Coincident", 17, 3, 16, 3))
sketch3.addConstraint(Sketcher.Constraint("Coincident", 19, 3, 18, 3))
sketch3.addConstraint(Sketcher.Constraint("Coincident", 21, 3, 20, 3))
sketch3.addConstraint(Sketcher.Constraint("Coincident", 23, 3, 22, 3))
sketch3.addConstraint(Sketcher.Constraint("Coincident", 25, 3, 24, 3))
sketch3.addConstraint(Sketcher.Constraint("Coincident", 27, 3, 26, 3))
sketch3.addConstraint(Sketcher.Constraint("Coincident", 29, 3, 28, 3))
sketch3.addConstraint(Sketcher.Constraint("Equal", 0, 2))
sketch3.addConstraint(Sketcher.Constraint("Equal", 1, 3))
sketch3.addConstraint(Sketcher.Constraint("Equal", 2, 4))
sketch3.addConstraint(Sketcher.Constraint("Equal", 3, 5))
sketch3.addConstraint(Sketcher.Constraint("Equal", 4, 6))
sketch3.addConstraint(Sketcher.Constraint("Equal", 5, 7))
sketch3.addConstraint(Sketcher.Constraint("Equal", 6, 8))
sketch3.addConstraint(Sketcher.Constraint("Equal", 7, 9))
sketch3.addConstraint(Sketcher.Constraint("Equal", 8, 10))
sketch3.addConstraint(Sketcher.Constraint("Equal", 9, 11))
sketch3.addConstraint(Sketcher.Constraint("Equal", 10, 12))
sketch3.addConstraint(Sketcher.Constraint("Equal", 11, 13))
sketch3.addConstraint(Sketcher.Constraint("Equal", 12, 14))
sketch3.addConstraint(Sketcher.Constraint("Equal", 13, 15))
sketch3.addConstraint(Sketcher.Constraint("Equal", 14, 16))
sketch3.addConstraint(Sketcher.Constraint("Equal", 15, 17))
sketch3.addConstraint(Sketcher.Constraint("Equal", 16, 18))
sketch3.addConstraint(Sketcher.Constraint("Equal", 17, 19))
sketch3.addConstraint(Sketcher.Constraint("Equal", 18, 20))
sketch3.addConstraint(Sketcher.Constraint("Equal", 19, 21))
sketch3.addConstraint(Sketcher.Constraint("Equal", 20, 22))
sketch3.addConstraint(Sketcher.Constraint("Equal", 21, 23))
sketch3.addConstraint(Sketcher.Constraint("Equal", 22, 24))
sketch3.addConstraint(Sketcher.Constraint("Equal", 23, 25))
sketch3.addConstraint(Sketcher.Constraint("Equal", 24, 26))
sketch3.addConstraint(Sketcher.Constraint("Equal", 25, 27))
sketch3.addConstraint(Sketcher.Constraint("Equal", 26, 28))
sketch3.addConstraint(Sketcher.Constraint("Equal", 27, 29))
sketch3.addConstraint(Sketcher.Constraint("Symmetric", 12, 3, 16, 3, -1, 1))
sketch3.addConstraint(Sketcher.Constraint("Symmetric", 10, 3, 18, 3, -1, 1))
sketch3.addConstraint(Sketcher.Constraint("Symmetric", 8, 3, 20, 3, -1, 1))
sketch3.addConstraint(Sketcher.Constraint("Symmetric", 6, 3, 22, 3, -1, 1))
sketch3.addConstraint(Sketcher.Constraint("Symmetric", 4, 3, 24, 3, -1, 1))
sketch3.addConstraint(Sketcher.Constraint("Symmetric", 2, 3, 26, 3, -1, 1))
sketch3.addConstraint(Sketcher.Constraint("Symmetric", 0, 3, 28, 3, -1, 1))
sketch3.addConstraint(Sketcher.Constraint("Symmetric", 2, 3, 6, 3, -2))
sketch3.addConstraint(Sketcher.Constraint("Symmetric", 0, 3, 8, 3, -2))
sketch3.addConstraint(Sketcher.Constraint("PointOnObject", 4, 3, -2))
sketch3.addConstraint(Sketcher.Constraint("PointOnObject", 10, 3, -1))
sketch3.addConstraint(Sketcher.Constraint("PointOnObject", 12, 3, -1))
sketch3.addConstraint(Sketcher.Constraint("Horizontal", 1, 3, 2, 3))
sketch3.addConstraint(Sketcher.Constraint("Horizontal", 3, 3, 4, 3))
sketch3.addConstraint(Sketcher.Constraint("Vertical", 9, 3, 10, 3))
sketch3.addConstraint(Sketcher.Constraint("Vertical", 7, 3, 12, 3))
sketch3.addConstraint(Sketcher.Constraint("Diameter", 0, Q("0.25 in")))
sketch3.addConstraint(Sketcher.Constraint("Diameter", 1, Q("0.194 in")))
sketch3.addConstraint(Sketcher.Constraint("DistanceX", 0, 3, -1, 1, Q("0.62 in")))
sketch3.addConstraint(Sketcher.Constraint("DistanceY", 0, 3, -1, 1, Q("0.31 in")))
sketch3.addConstraint(Sketcher.Constraint("DistanceX", 2, 3, -1, 1, Q("0.31 in")))
pad3 = body.newObject("PartDesign::Pad", "Pad002")
pad3.Profile = sketch3
pad3.Length = Q("0.0643 in")
pad3.Reversed = True

doc.recompute()
